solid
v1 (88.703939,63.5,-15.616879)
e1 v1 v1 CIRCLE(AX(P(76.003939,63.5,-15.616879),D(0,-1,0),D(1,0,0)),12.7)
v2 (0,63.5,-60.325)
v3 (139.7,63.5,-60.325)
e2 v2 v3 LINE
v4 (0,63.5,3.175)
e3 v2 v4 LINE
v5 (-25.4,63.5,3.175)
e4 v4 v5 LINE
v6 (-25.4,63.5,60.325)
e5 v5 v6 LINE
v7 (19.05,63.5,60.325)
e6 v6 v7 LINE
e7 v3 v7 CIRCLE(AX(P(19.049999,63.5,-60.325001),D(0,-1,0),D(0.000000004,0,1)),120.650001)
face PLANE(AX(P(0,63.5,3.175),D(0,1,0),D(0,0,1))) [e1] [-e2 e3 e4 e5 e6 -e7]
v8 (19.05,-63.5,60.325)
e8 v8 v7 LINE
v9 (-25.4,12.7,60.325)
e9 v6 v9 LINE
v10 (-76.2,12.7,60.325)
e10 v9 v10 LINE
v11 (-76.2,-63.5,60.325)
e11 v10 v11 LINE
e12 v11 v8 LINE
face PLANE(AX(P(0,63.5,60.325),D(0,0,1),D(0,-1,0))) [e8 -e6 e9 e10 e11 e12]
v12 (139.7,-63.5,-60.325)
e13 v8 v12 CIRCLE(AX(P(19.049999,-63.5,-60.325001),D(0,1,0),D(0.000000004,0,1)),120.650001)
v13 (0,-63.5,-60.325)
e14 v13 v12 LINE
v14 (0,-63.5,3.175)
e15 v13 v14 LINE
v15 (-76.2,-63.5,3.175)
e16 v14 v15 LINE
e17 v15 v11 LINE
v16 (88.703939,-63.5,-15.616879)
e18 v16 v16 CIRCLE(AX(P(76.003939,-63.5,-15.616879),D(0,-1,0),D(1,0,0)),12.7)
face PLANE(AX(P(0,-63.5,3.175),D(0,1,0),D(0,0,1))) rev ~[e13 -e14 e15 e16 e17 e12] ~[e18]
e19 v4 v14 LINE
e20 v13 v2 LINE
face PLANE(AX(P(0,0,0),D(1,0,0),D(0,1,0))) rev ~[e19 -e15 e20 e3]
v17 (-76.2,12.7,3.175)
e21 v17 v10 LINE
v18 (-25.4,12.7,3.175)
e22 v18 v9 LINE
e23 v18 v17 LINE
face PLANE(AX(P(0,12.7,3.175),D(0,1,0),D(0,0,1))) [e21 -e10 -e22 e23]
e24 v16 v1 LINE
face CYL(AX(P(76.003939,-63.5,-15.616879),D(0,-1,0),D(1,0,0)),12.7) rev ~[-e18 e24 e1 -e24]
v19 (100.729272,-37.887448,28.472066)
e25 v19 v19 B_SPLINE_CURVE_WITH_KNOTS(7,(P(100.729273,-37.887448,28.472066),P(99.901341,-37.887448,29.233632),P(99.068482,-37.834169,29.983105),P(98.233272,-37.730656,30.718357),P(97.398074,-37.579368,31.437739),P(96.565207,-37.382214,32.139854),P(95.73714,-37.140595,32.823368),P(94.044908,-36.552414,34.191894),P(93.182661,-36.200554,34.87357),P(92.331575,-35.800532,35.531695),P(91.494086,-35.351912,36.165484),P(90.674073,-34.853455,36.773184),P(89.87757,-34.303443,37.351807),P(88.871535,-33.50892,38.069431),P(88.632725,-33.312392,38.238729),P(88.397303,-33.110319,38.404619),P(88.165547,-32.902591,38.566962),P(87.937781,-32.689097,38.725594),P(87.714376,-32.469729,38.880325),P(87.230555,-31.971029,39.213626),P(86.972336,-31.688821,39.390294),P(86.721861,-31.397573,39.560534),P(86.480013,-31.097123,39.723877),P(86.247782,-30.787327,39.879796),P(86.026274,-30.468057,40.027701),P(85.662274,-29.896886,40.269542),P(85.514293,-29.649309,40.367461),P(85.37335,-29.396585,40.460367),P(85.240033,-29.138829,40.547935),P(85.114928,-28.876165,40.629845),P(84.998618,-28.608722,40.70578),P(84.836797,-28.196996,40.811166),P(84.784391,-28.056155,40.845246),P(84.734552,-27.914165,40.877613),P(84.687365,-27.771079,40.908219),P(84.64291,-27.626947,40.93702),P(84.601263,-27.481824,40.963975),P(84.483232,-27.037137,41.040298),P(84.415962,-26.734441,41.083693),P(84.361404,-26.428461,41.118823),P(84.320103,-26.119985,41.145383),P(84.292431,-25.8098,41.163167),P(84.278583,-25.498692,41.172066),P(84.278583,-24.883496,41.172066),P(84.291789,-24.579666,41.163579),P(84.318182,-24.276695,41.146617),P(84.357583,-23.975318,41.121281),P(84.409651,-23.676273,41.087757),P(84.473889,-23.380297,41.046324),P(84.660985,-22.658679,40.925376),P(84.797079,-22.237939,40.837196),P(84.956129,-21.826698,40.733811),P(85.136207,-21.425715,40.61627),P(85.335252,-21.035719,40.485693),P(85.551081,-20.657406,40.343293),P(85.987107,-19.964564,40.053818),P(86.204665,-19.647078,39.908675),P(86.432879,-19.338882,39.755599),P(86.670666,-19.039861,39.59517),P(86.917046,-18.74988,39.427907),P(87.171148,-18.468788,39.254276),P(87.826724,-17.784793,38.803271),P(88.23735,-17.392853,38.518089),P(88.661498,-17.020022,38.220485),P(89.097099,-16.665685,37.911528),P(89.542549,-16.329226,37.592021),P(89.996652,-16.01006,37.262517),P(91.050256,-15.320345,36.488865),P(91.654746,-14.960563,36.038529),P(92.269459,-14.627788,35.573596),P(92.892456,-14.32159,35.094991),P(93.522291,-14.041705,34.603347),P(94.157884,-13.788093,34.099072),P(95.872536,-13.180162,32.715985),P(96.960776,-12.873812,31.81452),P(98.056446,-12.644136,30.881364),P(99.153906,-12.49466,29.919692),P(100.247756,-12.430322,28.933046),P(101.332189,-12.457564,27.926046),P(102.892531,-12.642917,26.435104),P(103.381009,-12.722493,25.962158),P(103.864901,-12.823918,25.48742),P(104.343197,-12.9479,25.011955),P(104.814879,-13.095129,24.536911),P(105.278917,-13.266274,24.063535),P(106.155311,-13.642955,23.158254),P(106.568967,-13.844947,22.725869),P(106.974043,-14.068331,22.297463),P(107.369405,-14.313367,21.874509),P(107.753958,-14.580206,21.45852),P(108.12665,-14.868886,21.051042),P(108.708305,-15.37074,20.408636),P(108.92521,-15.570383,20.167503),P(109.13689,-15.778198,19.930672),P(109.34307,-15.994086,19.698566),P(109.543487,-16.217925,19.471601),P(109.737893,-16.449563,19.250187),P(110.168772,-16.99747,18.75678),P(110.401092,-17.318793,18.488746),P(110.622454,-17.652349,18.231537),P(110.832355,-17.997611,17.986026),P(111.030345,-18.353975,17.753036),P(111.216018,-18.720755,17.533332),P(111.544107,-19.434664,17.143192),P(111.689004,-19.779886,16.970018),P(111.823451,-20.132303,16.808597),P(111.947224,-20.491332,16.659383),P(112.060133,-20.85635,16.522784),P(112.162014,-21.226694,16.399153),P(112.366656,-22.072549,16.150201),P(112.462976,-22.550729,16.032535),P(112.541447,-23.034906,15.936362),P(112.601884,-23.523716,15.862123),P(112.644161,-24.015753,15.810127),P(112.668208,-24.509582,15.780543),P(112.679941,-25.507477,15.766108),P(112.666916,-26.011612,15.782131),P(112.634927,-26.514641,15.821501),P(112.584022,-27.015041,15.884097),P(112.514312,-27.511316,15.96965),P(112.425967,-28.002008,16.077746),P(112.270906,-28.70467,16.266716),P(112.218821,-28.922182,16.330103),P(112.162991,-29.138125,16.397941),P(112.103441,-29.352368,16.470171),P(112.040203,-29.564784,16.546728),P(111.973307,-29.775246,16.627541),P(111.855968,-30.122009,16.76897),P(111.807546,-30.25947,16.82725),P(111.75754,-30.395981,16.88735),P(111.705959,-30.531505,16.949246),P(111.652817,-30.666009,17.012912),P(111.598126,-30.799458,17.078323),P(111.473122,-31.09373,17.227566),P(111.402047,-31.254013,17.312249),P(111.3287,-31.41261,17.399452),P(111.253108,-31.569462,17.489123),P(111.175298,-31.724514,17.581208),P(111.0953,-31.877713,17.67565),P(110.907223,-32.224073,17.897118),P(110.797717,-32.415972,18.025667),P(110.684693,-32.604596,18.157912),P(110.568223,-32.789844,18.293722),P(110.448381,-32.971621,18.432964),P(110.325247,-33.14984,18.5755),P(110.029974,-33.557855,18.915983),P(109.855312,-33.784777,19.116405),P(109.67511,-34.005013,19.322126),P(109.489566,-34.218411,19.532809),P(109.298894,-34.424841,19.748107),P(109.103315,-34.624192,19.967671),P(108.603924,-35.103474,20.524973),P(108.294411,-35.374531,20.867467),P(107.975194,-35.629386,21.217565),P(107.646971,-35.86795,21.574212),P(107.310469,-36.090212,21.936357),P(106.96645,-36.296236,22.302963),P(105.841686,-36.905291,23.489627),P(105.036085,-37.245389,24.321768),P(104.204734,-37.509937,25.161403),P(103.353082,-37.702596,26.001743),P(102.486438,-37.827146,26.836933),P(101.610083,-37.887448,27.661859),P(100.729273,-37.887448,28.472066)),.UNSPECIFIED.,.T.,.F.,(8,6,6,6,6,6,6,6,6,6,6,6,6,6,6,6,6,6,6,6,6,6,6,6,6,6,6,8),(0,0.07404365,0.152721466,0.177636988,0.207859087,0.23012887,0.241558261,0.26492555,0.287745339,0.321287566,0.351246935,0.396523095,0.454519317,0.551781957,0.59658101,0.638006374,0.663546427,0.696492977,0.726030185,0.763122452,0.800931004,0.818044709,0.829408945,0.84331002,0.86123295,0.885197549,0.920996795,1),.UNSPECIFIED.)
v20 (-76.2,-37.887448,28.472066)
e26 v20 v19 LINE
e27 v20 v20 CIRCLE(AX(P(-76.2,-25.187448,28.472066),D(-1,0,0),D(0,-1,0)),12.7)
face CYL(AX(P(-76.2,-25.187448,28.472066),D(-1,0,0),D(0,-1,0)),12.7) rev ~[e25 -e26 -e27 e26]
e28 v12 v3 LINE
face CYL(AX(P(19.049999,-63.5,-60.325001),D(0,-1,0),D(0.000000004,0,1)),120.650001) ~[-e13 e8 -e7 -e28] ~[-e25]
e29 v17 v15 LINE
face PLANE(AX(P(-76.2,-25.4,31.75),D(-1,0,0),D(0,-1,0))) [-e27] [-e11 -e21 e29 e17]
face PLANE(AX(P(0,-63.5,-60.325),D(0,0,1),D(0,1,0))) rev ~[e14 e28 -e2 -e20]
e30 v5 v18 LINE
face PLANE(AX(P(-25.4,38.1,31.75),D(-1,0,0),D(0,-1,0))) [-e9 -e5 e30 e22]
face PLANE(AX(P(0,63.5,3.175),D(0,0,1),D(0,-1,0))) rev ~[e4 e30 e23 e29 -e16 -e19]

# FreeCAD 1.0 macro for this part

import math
import FreeCAD as App
import Part
import Sketcher

V = App.Vector
Q = App.Units.Quantity


def add_polygon(sketch, points):
    """Adds a closed chain of lines whose ends are joined by coincident constraints."""
    first, n = sketch.GeometryCount, len(points)
    for a, b in zip(points, points[1:] + points[:1]):
        sketch.addGeometry(Part.LineSegment(App.Vector(*a, 0), App.Vector(*b, 0)), False)
    for i in range(n):
        sketch.addConstraint(Sketcher.Constraint("Coincident", first + i, 2, first + (i + 1) % n, 1))

doc = App.newDocument("Part")
body = doc.addObject("PartDesign::Body", "Body")

# Sketch on YZ plane
sketch1 = doc.addObject("Sketcher::SketchObject", "Sketch")
body.addObject(sketch1)
sketch1.AttachmentSupport = (doc.YZ_Plane, [""])
sketch1.MapMode = "FlatFace"
add_polygon(sketch1, [(-64, 60), (-64, -60), (64, -60), (64, 60)])  # lines 0-3
sketch1.addConstraint(Sketcher.Constraint("Vertical", 0))
sketch1.addConstraint(Sketcher.Constraint("Horizontal", 1))
sketch1.addConstraint(Sketcher.Constraint("Vertical", 2))
sketch1.addConstraint(Sketcher.Constraint("Horizontal", 3))
sketch1.addConstraint(Sketcher.Constraint("Symmetric", 0, 2, 2, 2, -1, 1))
sketch1.addConstraint(Sketcher.Constraint("DistanceX", 1, 1, 1, 2, Q("5 in")))
sketch1.addConstraint(Sketcher.Constraint("DistanceY", 0, 2, 0, 1, Q("4.75 in")))
pad1 = doc.addObject("PartDesign::Pad", "Pad")
body.addObject(pad1)
pad1.Profile = sketch1
pad1.Length = Q("5.5 in")

# Sketch on YZ plane
sketch2 = doc.addObject("Sketcher::SketchObject", "Sketch001")
body.addObject(sketch2)
sketch2.AttachmentSupport = (doc.YZ_Plane, [""])
sketch2.MapMode = "FlatFace"
add_polygon(sketch2, [(13, 60), (13, 3), (-64, 3), (-64, 60)])  # lines 0-3
sketch2.addConstraint(Sketcher.Constraint("Vertical", 0))
sketch2.addConstraint(Sketcher.Constraint("Horizontal", 1))
sketch2.addConstraint(Sketcher.Constraint("Vertical", 2))
sketch2.addConstraint(Sketcher.Constraint("Horizontal", 3))
sketch2.addConstraint(Sketcher.Constraint("DistanceX", 1, 2, 1, 1, Q("3 in")))
sketch2.addConstraint(Sketcher.Constraint("DistanceY", 0, 2, 0, 1, Q("2.25 in")))
sketch2.addConstraint(Sketcher.Constraint("DistanceX", -1, 1, 0, 2, Q("0.5 in")))
sketch2.addConstraint(Sketcher.Constraint("DistanceY", -1, 1, 0, 2, Q("0.125 in")))
pad2 = doc.addObject("PartDesign::Pad", "Pad001")
body.addObject(pad2)
pad2.Profile = sketch2
pad2.Length = Q("3 in")
pad2.Reversed = True

# Sketch on XZ plane
sketch3 = doc.addObject("Sketcher::SketchObject", "Sketch002")
body.addObject(sketch3)
sketch3.AttachmentSupport = (doc.XZ_Plane, [""])
sketch3.MapMode = "FlatFace"
sketch3.AttachmentOffset = App.Placement(V(0, 0, 2.5 * 25.4), App.Rotation())
sketch3.addGeometry(Part.ArcOfCircle(Part.Circle(V(19, -60, 0), V(0, 0, 1), 121), math.radians(0), math.radians(90)), False)
sketch3.addGeometry(Part.LineSegment(V(140, -60, 0), V(140, 60, 0)), False)
sketch3.addGeometry(Part.LineSegment(V(140, 60, 0), V(19, 60, 0)), False)
sketch3.addConstraint(Sketcher.Constraint("Tangent", 0, 1, 1, 1))
sketch3.addConstraint(Sketcher.Constraint("Coincident", 1, 2, 2, 1))
sketch3.addConstraint(Sketcher.Constraint("Tangent", 2, 2, 0, 2))
sketch3.addConstraint(Sketcher.Constraint("Vertical", 1))
sketch3.addConstraint(Sketcher.Constraint("Horizontal", 2))
sketch3.addConstraint(Sketcher.Constraint("Radius", 0, Q("4.75 in")))
sketch3.addConstraint(Sketcher.Constraint("DistanceX", -1, 1, 0, 1, Q("5.5 in")))
sketch3.addConstraint(Sketcher.Constraint("DistanceY", 0, 3, -1, 1, Q("2.375 in")))
pocket1 = doc.addObject("PartDesign::Pocket", "Pocket")
body.addObject(pocket1)
pocket1.Profile = sketch3
pocket1.Type = "ThroughAll"

# Sketch on YZ plane
sketch4 = doc.addObject("Sketcher::SketchObject", "Sketch003")
body.addObject(sketch4)
sketch4.AttachmentSupport = (doc.YZ_Plane, [""])
sketch4.MapMode = "FlatFace"
add_polygon(sketch4, [(64, 60), (64, 3), (13, 3), (13, 60)])  # lines 0-3
sketch4.addConstraint(Sketcher.Constraint("Vertical", 0))
sketch4.addConstraint(Sketcher.Constraint("Horizontal", 1))
sketch4.addConstraint(Sketcher.Constraint("Vertical", 2))
sketch4.addConstraint(Sketcher.Constraint("Horizontal", 3))
sketch4.addConstraint(Sketcher.Constraint("DistanceX", 1, 2, 1, 1, Q("2 in")))
sketch4.addConstraint(Sketcher.Constraint("DistanceY", 0, 2, 0, 1, Q("2.25 in")))
sketch4.addConstraint(Sketcher.Constraint("DistanceX", -1, 1, 0, 2, Q("2.5 in")))
sketch4.addConstraint(Sketcher.Constraint("DistanceY", -1, 1, 0, 2, Q("0.125 in")))
pad3 = doc.addObject("PartDesign::Pad", "Pad002")
body.addObject(pad3)
pad3.Profile = sketch4
pad3.Length = Q("1 in")
pad3.Reversed = True

# Sketch on YZ plane
sketch5 = doc.addObject("Sketcher::SketchObject", "Sketch004")
body.addObject(sketch5)
sketch5.AttachmentSupport = (doc.YZ_Plane, [""])
sketch5.MapMode = "FlatFace"
sketch5.AttachmentOffset = App.Placement(V(0, 0, -3 * 25.4), App.Rotation())
sketch5.addGeometry(Part.Circle(V(-25, 28, 0), V(0, 0, 1), 13), False)
sketch5.addConstraint(Sketcher.Constraint("Diameter", 0, Q("1 in")))
sketch5.addConstraint(Sketcher.Constraint("DistanceX", 0, 3, -1, 1, 25.187448))
sketch5.addConstraint(Sketcher.Constraint("DistanceY", -1, 1, 0, 3, 28.472066))
pocket2 = doc.addObject("PartDesign::Pocket", "Pocket001")
body.addObject(pocket2)
pocket2.Profile = sketch5
pocket2.Type = "ThroughAll"
pocket2.Reversed = True

# Sketch on XZ plane
sketch6 = doc.addObject("Sketcher::SketchObject", "Sketch005")
body.addObject(sketch6)
sketch6.AttachmentSupport = (doc.XZ_Plane, [""])
sketch6.MapMode = "FlatFace"
sketch6.AttachmentOffset = App.Placement(V(0, 0, 2.5 * 25.4), App.Rotation())
sketch6.addGeometry(Part.Circle(V(76, -16, 0), V(0, 0, 1), 13), False)
sketch6.addConstraint(Sketcher.Constraint("Diameter", 0, Q("1 in")))
sketch6.addConstraint(Sketcher.Constraint("DistanceX", -1, 1, 0, 3, 76.003939))
sketch6.addConstraint(Sketcher.Constraint("DistanceY", 0, 3, -1, 1, 15.616879))
pocket3 = doc.addObject("PartDesign::Pocket", "Pocket002")
body.addObject(pocket3)
pocket3.Profile = sketch6
pocket3.Type = "ThroughAll"

doc.recompute()
